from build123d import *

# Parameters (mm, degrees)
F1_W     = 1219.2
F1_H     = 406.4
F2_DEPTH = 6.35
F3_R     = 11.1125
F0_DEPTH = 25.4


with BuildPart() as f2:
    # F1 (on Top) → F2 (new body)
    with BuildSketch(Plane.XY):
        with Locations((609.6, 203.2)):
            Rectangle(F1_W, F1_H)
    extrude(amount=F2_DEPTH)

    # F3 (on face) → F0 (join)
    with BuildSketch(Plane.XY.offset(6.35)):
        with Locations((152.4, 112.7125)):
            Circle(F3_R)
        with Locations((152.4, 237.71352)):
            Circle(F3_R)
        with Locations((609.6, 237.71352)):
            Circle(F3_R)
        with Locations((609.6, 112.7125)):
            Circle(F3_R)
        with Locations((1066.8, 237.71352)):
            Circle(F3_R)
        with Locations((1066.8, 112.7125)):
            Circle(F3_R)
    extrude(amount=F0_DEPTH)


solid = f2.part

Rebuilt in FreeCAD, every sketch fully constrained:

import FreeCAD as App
import Part
import Sketcher

V = App.Vector
Q = App.Units.Quantity


def add_polygon(sketch, points):
    """Adds a closed chain of lines whose ends are joined by coincident constraints."""
    first, n = sketch.GeometryCount, len(points)
    for a, b in zip(points, points[1:] + points[:1]):
        sketch.addGeometry(Part.LineSegment(App.Vector(*a, 0), App.Vector(*b, 0)), False)
    for i in range(n):
        sketch.addConstraint(Sketcher.Constraint("Coincident", first + i, 2, first + (i + 1) % n, 1))

doc = App.newDocument("Part")
body = doc.addObject("PartDesign::Body", "Body")

# Sketch on XY plane
sketch1 = body.newObject("Sketcher::SketchObject", "Sketch")
sketch1.AttachmentSupport = (doc.getObject("XY_Plane"), [""])
sketch1.MapMode = "FlatFace"
add_polygon(sketch1, [(0, 406), (0, 0), (1219, 0), (1219, 406)])  # lines 0-3
sketch1.addConstraint([
    Sketcher.Constraint("Vertical", 0),
    Sketcher.Constraint("Horizontal", 1),
    Sketcher.Constraint("Vertical", 2),
    Sketcher.Constraint("Horizontal", 3),
    Sketcher.Constraint("Coincident", 0, 2, -1, 1),
    Sketcher.Constraint("DistanceX", 1, 1, 1, 2, Q("48 in")),
    Sketcher.Constraint("DistanceY", 0, 2, 0, 1, Q("16 in")),
])
pad1 = body.newObject("PartDesign::Pad", "Pad")
pad1.Profile = sketch1
pad1.Length = Q("0.25 in")

# Sketch on XY plane
sketch2 = body.newObject("Sketcher::SketchObject", "Sketch001")
sketch2.AttachmentSupport = (doc.getObject("XY_Plane"), [""])
sketch2.MapMode = "FlatFace"
sketch2.AttachmentOffset = App.Placement(V(0, 0, 0.25 * 25.4), App.Rotation())
sketch2.addGeometry([
    Part.Circle(V(152, 113, 0), V(0, 0, 1), 11),  # 0
    Part.Circle(V(152, 238, 0), V(0, 0, 1), 11),  # 1
    Part.Circle(V(610, 238, 0), V(0, 0, 1), 11),  # 2
    Part.Circle(V(610, 113, 0), V(0, 0, 1), 11),  # 3
    Part.Circle(V(1067, 238, 0), V(0, 0, 1), 11),  # 4
    Part.Circle(V(1067, 113, 0), V(0, 0, 1), 11),  # 5
], False)
sketch2.addConstraint([
    Sketcher.Constraint("Equal", 0, 1),
    Sketcher.Constraint("Equal", 1, 2),
    Sketcher.Constraint("Equal", 2, 3),
    Sketcher.Constraint("Equal", 3, 4),
    Sketcher.Constraint("Equal", 4, 5),
    Sketcher.Constraint("Horizontal", 1, 3, 2, 3),
    Sketcher.Constraint("Horizontal", 0, 3, 3, 3),
    Sketcher.Constraint("Horizontal", 2, 3, 4, 3),
    Sketcher.Constraint("Horizontal", 3, 3, 5, 3),
    Sketcher.Constraint("Vertical", 0, 3, 1, 3),
    Sketcher.Constraint("Vertical", 2, 3, 3, 3),
    Sketcher.Constraint("Vertical", 4, 3, 5, 3),
    Sketcher.Constraint("Diameter", 0, Q("0.875 in")),
    Sketcher.Constraint("DistanceX", -1, 1, 0, 3, Q("6 in")),
    Sketcher.Constraint("DistanceX", -1, 1, 2, 3, Q("24 in")),
    Sketcher.Constraint("DistanceX", -1, 1, 4, 3, Q("42 in")),
    Sketcher.Constraint("DistanceY", -1, 1, 0, 3, Q("4.4375 in")),
    Sketcher.Constraint("DistanceY", -1, 1, 1, 3, Q("9.3588 in")),
])
pad2 = body.newObject("PartDesign::Pad", "Pad001")
pad2.Profile = sketch2
pad2.Length = Q("1 in")

doc.recompute()
